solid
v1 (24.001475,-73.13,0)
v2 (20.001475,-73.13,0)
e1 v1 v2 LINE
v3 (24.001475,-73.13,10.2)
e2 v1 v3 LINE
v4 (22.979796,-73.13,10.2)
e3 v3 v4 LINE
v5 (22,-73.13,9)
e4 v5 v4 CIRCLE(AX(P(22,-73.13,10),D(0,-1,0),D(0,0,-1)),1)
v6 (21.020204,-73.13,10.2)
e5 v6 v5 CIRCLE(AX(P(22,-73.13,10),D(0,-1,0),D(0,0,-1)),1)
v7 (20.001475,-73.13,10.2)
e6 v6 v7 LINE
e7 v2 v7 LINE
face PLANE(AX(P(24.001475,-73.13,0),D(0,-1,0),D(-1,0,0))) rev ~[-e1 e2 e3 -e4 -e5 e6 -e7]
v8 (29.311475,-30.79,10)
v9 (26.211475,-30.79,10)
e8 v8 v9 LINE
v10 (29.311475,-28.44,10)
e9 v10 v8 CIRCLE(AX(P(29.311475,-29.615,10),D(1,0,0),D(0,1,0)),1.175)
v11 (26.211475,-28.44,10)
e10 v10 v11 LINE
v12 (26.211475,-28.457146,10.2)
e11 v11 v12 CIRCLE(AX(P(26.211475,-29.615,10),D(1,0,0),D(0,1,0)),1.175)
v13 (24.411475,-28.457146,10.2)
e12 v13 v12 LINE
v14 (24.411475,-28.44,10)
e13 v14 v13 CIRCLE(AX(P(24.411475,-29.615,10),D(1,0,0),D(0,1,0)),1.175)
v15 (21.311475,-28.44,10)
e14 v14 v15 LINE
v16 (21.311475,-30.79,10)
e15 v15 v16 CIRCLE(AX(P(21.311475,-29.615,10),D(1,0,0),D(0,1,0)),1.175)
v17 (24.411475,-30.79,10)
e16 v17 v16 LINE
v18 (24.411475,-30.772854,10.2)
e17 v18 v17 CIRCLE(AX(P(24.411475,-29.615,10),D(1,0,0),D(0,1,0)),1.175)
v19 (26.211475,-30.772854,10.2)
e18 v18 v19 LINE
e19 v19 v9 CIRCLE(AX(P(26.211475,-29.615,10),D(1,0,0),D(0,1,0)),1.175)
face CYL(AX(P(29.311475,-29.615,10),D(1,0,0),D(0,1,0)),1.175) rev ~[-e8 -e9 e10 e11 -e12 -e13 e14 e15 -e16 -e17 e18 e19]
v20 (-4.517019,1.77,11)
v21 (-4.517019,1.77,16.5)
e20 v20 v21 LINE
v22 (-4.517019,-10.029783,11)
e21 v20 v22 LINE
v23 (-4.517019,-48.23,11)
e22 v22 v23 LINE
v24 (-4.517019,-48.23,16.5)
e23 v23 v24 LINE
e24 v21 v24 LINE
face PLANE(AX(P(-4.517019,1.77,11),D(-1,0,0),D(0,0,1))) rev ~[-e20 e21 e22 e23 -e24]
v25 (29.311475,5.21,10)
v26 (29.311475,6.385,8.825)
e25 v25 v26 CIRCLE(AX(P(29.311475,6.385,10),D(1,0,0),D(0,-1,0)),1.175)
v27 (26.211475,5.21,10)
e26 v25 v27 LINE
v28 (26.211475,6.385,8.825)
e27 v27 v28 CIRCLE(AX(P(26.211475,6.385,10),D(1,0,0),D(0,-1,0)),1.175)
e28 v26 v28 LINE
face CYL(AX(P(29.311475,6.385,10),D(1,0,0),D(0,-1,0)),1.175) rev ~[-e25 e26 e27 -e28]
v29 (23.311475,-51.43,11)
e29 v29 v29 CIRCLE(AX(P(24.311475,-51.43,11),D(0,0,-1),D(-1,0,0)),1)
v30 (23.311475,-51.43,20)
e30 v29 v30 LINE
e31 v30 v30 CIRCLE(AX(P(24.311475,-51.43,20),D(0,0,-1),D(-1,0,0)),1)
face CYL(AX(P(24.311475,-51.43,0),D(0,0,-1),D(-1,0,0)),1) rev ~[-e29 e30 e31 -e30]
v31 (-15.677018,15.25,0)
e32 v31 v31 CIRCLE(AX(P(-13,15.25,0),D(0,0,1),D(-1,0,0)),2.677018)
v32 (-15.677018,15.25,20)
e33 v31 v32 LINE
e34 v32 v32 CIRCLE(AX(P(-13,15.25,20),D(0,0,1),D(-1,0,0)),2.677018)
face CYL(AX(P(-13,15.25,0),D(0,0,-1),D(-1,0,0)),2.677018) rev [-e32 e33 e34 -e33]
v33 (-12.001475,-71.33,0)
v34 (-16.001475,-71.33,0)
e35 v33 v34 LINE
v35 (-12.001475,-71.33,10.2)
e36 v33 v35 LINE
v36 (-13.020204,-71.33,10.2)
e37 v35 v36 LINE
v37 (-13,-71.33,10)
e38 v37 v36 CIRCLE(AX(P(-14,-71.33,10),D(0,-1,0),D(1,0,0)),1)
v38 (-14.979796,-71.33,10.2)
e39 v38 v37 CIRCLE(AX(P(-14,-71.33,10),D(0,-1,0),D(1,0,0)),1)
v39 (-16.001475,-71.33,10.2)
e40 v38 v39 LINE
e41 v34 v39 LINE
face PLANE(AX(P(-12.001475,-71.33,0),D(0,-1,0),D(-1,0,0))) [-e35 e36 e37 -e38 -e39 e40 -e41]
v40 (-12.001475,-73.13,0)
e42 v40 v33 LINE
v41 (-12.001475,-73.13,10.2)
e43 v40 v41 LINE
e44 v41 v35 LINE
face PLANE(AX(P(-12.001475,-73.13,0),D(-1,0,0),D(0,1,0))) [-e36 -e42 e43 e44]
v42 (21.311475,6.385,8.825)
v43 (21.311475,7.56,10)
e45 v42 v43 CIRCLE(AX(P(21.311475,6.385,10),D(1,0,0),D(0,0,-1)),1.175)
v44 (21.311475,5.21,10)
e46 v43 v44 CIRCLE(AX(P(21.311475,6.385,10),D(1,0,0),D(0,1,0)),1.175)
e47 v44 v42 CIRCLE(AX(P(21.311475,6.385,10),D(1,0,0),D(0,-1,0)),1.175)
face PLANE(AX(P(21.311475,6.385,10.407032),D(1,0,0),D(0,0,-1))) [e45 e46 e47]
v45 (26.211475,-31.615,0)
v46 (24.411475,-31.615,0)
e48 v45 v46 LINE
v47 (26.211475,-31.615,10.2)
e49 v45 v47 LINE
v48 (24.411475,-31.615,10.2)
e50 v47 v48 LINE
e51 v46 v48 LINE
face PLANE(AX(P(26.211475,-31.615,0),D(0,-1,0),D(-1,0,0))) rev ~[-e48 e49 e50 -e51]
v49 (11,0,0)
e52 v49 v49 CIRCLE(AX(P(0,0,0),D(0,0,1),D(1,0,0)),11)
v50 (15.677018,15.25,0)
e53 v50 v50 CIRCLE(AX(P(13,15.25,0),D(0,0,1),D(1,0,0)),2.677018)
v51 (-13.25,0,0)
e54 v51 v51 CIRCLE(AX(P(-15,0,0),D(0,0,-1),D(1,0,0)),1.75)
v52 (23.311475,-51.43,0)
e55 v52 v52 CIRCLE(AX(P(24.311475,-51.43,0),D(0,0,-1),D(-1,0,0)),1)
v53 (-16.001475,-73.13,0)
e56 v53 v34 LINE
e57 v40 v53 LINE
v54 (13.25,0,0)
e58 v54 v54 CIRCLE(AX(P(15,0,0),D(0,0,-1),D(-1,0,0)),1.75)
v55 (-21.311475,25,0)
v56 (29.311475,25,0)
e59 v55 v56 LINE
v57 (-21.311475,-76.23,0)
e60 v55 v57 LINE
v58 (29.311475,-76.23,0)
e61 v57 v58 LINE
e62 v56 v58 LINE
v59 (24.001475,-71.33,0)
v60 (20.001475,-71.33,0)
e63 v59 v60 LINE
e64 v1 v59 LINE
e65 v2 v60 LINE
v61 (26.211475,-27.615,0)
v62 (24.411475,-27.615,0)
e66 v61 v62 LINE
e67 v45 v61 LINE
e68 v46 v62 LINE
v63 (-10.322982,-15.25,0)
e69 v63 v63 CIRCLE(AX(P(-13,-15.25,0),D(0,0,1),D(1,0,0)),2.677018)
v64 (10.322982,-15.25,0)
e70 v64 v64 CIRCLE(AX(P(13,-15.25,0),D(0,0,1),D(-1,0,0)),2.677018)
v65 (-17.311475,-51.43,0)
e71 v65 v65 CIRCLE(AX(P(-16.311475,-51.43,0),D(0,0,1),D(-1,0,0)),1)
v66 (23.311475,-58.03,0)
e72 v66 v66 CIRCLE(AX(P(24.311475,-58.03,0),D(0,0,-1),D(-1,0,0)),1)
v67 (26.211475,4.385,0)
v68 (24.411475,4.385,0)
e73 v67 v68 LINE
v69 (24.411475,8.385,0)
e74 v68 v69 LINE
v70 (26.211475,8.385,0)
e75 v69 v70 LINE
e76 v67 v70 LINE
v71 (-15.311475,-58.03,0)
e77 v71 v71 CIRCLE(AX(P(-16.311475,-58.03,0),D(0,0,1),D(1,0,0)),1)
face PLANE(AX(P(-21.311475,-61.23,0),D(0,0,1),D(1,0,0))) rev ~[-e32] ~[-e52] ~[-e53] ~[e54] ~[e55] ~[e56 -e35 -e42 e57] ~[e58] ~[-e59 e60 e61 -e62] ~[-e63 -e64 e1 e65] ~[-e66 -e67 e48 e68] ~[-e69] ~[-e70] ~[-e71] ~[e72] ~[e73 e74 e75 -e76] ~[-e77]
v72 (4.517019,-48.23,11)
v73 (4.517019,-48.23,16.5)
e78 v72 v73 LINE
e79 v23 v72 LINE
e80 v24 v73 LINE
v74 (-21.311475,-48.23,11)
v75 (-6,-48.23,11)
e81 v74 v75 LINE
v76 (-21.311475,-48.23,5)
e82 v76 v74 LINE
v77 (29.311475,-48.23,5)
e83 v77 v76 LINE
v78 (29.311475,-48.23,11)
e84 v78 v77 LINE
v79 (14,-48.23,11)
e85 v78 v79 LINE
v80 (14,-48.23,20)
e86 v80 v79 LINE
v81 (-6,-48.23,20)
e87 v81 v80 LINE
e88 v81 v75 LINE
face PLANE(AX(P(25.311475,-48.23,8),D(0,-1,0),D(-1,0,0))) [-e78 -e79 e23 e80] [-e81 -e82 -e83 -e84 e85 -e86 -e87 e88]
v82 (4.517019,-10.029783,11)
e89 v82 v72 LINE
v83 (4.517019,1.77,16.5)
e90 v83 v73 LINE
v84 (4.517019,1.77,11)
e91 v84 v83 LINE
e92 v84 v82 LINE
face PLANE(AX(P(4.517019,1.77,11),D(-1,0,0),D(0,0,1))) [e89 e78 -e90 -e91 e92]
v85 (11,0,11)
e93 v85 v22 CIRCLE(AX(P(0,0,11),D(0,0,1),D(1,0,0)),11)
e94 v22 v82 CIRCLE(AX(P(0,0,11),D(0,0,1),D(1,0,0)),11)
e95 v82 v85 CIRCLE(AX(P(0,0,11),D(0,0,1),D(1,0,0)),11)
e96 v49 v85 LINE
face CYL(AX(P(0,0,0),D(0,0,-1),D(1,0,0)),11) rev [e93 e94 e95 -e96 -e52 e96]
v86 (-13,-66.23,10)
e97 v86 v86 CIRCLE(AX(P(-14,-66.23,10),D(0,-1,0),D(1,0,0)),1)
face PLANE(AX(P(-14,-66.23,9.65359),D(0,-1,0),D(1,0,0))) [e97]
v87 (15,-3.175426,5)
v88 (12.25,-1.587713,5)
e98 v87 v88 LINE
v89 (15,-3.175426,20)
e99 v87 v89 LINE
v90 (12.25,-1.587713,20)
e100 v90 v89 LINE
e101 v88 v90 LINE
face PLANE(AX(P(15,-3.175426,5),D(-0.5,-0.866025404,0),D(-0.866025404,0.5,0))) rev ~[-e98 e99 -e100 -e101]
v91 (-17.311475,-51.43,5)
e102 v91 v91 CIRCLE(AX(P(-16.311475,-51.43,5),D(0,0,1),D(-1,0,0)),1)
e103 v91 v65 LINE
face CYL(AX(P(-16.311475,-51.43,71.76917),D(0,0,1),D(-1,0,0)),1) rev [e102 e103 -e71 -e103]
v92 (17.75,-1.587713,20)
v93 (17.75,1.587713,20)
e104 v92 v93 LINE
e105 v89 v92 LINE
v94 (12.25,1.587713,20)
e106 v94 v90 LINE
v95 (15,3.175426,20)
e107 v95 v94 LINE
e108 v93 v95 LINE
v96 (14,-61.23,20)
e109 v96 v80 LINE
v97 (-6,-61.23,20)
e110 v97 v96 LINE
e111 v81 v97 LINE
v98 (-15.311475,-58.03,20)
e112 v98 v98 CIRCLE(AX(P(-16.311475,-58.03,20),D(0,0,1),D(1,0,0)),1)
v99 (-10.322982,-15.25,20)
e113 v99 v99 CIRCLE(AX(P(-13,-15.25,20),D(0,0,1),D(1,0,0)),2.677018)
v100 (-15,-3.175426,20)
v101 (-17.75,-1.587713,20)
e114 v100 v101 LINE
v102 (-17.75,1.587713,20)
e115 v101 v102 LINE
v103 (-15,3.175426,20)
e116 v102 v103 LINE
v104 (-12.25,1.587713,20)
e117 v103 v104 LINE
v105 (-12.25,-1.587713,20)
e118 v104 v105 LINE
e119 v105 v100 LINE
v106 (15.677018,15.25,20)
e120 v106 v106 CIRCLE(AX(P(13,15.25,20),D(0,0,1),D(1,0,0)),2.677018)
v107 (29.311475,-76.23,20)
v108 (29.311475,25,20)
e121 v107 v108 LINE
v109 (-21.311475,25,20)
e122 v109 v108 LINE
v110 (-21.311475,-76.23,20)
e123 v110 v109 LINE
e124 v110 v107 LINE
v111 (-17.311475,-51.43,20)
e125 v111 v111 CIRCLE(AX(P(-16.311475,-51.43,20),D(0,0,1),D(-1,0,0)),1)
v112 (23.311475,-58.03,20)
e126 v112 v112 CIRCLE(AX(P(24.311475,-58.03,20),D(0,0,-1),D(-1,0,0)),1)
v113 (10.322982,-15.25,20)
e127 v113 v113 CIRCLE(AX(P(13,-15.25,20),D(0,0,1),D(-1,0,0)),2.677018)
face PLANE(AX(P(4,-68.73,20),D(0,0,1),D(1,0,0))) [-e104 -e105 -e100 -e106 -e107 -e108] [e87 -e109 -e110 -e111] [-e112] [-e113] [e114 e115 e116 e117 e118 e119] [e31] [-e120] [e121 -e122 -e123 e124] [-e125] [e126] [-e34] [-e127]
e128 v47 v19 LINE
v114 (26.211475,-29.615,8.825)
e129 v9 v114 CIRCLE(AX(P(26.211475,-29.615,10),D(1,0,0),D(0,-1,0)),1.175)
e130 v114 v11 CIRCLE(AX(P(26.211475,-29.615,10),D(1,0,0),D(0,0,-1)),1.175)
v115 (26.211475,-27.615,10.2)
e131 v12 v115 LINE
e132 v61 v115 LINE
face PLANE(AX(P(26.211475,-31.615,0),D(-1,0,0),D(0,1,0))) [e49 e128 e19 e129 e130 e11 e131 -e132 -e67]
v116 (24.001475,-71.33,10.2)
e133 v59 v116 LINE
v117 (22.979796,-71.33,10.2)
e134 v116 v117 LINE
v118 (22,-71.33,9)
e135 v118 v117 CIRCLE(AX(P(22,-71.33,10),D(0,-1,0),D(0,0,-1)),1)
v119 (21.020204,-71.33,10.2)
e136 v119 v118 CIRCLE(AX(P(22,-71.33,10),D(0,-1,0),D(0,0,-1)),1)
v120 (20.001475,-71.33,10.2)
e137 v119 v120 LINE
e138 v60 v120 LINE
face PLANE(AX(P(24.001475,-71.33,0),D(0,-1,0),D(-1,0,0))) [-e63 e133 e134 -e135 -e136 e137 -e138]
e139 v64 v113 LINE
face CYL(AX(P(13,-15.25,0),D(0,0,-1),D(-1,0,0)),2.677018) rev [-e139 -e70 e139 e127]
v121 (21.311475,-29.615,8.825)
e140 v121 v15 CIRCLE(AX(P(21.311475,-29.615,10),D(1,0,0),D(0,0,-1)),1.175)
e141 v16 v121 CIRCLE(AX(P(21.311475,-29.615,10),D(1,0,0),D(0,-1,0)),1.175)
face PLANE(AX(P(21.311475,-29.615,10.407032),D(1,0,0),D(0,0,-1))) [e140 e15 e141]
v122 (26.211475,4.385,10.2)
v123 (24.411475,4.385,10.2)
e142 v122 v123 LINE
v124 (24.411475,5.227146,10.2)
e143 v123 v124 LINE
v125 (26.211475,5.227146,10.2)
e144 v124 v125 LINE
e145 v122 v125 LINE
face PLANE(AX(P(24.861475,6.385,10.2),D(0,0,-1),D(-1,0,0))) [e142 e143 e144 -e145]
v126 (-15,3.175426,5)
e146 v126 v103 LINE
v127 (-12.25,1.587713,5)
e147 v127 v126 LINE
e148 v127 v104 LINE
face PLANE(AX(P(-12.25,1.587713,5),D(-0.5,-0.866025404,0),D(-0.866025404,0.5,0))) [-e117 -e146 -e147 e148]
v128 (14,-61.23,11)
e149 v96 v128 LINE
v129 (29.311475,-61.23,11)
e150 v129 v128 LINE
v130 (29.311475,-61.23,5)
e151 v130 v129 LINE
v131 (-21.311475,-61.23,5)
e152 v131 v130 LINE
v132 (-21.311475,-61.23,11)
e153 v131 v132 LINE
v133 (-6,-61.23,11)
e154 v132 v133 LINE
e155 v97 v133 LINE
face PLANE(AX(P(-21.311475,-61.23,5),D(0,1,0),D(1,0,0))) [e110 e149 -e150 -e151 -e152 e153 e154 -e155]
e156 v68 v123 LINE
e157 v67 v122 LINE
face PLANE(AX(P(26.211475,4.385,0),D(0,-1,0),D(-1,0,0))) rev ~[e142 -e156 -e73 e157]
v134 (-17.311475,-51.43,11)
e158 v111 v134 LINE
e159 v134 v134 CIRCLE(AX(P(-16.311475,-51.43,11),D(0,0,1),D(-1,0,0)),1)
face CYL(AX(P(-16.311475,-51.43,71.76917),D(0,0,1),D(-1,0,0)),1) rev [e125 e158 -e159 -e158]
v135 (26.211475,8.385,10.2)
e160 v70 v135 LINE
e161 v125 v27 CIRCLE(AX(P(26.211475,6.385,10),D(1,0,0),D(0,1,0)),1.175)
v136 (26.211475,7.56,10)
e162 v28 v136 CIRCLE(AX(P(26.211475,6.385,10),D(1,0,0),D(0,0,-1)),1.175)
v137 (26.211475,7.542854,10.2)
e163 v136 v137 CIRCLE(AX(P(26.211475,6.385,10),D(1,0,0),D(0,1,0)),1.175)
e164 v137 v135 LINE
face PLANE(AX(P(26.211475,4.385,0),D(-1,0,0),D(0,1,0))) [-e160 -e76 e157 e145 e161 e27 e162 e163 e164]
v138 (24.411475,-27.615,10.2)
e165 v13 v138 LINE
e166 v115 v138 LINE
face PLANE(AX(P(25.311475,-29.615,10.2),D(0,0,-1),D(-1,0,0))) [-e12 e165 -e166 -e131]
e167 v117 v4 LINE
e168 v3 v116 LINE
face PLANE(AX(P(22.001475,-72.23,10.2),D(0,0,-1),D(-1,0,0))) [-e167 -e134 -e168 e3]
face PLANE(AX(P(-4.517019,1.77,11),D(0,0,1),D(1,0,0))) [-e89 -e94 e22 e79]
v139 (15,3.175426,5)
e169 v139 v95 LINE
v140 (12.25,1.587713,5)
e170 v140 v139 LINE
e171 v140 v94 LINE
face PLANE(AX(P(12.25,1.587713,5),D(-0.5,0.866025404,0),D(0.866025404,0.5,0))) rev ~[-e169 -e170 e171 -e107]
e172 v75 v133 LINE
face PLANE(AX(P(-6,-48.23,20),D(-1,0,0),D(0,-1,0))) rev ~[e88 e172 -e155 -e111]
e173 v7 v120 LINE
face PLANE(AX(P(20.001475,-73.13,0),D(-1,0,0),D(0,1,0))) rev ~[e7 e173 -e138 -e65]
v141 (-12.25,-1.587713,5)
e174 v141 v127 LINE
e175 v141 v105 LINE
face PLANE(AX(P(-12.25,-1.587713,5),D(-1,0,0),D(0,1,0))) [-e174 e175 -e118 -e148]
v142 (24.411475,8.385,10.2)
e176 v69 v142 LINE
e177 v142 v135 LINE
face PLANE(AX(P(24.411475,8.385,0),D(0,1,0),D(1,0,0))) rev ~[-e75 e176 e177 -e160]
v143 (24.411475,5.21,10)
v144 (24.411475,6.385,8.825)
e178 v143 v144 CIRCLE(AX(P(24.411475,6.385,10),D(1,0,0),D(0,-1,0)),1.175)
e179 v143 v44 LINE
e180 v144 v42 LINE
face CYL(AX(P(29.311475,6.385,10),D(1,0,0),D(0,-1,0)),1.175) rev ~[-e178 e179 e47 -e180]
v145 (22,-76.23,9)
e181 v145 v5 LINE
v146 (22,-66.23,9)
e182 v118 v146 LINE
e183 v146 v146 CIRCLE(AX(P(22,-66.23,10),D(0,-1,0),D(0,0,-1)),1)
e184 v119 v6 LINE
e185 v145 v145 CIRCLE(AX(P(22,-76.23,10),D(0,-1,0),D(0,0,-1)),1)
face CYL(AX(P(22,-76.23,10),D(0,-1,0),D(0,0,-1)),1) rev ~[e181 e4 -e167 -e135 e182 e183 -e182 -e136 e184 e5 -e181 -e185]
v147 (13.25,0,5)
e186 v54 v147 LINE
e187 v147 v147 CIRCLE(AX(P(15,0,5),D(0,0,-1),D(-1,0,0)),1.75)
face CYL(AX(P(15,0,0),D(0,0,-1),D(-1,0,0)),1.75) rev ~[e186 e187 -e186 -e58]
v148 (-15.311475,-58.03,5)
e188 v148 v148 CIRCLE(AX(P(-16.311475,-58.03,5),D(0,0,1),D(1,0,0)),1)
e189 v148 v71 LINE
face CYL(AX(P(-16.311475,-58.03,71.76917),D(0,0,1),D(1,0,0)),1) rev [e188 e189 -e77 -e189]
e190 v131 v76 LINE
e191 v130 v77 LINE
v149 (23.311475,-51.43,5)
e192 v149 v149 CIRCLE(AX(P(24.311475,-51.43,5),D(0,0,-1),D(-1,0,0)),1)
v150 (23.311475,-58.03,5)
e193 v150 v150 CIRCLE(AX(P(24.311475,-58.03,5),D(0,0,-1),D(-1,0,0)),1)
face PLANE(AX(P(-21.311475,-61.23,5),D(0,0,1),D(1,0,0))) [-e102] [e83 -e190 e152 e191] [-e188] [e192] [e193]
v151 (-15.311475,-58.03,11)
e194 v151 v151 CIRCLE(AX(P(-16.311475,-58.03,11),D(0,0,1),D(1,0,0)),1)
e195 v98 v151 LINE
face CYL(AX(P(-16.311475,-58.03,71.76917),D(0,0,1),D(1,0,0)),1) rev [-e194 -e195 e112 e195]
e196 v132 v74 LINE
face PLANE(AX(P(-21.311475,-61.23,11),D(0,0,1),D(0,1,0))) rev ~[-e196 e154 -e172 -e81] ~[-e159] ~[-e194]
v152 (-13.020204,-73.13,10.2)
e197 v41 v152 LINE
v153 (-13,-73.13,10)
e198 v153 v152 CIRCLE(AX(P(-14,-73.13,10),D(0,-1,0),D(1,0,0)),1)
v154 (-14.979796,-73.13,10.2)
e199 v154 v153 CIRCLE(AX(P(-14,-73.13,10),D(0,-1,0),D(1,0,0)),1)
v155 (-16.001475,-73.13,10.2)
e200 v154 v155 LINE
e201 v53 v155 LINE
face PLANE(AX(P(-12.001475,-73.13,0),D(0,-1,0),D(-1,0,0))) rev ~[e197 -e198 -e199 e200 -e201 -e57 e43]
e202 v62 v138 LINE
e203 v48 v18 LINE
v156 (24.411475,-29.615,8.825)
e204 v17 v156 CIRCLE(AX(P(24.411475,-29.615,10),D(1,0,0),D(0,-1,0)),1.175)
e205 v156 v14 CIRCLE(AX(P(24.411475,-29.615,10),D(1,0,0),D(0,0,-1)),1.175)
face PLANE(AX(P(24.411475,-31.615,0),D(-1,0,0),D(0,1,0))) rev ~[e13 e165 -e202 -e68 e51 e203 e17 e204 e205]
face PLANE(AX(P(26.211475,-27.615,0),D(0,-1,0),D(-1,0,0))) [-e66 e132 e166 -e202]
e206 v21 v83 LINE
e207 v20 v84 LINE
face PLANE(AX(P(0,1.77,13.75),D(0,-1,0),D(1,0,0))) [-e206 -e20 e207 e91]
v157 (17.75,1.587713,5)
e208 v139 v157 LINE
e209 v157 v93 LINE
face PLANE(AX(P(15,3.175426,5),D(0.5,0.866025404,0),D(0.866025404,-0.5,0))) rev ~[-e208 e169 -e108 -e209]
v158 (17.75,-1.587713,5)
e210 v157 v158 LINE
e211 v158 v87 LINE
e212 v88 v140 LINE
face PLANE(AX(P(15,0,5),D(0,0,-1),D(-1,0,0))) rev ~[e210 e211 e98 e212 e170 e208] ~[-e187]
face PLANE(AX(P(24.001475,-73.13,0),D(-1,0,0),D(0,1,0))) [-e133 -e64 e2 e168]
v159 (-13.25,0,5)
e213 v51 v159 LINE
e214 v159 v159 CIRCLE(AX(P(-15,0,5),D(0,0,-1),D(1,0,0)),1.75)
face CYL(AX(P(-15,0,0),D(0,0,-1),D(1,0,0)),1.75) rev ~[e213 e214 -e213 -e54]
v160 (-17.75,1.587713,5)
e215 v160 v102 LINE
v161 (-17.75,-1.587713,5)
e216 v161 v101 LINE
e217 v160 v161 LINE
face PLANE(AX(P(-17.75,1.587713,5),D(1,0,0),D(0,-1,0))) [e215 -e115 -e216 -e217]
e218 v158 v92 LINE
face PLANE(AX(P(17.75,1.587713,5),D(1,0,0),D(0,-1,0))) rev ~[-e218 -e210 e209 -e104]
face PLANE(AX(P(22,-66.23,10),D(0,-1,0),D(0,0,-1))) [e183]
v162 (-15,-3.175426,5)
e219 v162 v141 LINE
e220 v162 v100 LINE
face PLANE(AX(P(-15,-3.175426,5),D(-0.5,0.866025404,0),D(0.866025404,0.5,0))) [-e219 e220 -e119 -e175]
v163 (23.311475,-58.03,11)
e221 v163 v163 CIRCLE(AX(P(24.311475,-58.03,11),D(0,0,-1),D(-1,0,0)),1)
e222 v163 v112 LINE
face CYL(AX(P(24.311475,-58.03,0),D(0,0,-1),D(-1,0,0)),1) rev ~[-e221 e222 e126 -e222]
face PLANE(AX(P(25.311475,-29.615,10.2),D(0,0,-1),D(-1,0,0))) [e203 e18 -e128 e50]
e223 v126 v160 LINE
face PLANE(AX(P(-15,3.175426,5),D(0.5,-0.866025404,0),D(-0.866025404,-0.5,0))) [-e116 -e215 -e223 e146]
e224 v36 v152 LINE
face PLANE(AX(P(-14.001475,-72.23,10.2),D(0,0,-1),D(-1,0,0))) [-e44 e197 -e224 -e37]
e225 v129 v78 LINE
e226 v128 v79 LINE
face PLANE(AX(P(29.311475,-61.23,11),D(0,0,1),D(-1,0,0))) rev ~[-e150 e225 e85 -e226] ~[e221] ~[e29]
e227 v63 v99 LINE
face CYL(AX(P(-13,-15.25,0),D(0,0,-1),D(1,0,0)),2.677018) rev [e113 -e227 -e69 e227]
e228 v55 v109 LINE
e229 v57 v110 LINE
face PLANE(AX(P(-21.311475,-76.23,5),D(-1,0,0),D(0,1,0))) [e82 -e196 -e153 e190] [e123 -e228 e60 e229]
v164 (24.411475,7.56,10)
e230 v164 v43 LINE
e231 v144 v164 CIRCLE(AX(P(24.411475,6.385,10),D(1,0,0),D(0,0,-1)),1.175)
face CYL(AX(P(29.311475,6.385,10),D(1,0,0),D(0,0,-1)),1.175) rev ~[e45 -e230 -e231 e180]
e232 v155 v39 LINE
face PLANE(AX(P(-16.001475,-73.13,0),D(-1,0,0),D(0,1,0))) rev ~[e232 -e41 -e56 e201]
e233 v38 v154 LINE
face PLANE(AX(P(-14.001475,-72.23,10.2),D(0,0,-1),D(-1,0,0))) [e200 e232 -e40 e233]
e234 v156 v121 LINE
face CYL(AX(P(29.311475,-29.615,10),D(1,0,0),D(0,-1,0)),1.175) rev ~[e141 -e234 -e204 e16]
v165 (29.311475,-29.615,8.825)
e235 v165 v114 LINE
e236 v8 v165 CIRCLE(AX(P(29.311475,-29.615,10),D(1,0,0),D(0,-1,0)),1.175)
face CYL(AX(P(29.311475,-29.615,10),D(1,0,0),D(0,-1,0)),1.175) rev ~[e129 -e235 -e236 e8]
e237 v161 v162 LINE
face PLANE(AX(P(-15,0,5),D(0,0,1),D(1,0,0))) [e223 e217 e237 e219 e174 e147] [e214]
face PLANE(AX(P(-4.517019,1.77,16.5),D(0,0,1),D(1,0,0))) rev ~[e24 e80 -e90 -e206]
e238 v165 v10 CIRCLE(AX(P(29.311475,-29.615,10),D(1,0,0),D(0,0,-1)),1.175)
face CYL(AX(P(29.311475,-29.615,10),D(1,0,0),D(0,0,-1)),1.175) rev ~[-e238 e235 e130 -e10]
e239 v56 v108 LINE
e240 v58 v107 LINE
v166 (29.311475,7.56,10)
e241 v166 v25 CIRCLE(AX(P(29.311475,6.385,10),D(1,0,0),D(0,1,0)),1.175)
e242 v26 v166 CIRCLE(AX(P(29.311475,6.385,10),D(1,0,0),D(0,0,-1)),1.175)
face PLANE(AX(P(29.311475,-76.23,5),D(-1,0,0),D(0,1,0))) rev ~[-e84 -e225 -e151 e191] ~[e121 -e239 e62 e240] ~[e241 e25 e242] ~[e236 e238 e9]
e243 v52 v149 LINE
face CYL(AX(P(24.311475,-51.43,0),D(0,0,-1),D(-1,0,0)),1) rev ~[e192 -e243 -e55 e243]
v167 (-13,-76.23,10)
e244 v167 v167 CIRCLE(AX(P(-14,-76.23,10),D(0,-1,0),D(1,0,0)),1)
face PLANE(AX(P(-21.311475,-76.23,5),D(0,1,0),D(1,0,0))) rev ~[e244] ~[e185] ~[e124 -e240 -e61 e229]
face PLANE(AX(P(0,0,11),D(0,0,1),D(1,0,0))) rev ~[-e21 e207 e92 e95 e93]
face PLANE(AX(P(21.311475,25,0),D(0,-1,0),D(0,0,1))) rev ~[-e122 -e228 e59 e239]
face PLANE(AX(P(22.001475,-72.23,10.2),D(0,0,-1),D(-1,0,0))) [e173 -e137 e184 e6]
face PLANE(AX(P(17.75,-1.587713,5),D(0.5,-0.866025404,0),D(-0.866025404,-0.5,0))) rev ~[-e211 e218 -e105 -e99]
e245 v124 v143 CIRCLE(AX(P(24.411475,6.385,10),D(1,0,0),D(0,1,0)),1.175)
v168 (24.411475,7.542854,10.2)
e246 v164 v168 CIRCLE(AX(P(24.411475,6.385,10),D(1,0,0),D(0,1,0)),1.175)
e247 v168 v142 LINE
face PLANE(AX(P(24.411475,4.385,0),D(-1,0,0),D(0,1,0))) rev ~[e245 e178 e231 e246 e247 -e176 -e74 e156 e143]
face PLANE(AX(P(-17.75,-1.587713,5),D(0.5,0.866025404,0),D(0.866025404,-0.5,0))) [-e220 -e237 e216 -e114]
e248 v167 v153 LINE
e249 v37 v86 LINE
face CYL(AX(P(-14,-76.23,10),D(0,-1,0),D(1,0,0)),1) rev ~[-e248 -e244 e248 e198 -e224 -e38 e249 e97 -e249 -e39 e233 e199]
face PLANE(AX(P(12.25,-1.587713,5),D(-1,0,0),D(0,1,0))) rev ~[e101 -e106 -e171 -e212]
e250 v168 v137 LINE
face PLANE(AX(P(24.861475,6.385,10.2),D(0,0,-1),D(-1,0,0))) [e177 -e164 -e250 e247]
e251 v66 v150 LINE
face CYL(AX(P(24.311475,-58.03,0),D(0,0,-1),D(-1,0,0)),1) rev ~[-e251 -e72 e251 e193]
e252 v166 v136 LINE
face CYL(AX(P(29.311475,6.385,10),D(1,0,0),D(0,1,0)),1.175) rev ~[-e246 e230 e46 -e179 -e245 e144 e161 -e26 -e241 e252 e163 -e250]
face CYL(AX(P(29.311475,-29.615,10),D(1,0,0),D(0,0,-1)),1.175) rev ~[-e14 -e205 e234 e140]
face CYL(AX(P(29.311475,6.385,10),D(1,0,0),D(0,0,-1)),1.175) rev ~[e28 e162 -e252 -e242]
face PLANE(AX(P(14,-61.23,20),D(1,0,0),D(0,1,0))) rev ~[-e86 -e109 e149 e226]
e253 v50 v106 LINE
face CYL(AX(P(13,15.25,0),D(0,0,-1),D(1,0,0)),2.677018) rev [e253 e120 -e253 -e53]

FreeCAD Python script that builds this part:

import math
import FreeCAD as App
import Part
import Sketcher
from FreeCAD import Vector
Q = App.Units.Quantity


def add_polygon(sketch, points):
    """Adds a closed chain of lines whose ends are joined by coincident constraints."""
    first, n = sketch.GeometryCount, len(points)
    for a, b in zip(points, points[1:] + points[:1]):
        sketch.addGeometry(Part.LineSegment(App.Vector(*a, 0), App.Vector(*b, 0)), False)
    for i in range(n):
        sketch.addConstraint(Sketcher.Constraint("Coincident", first + i, 2, first + (i + 1) % n, 1))

doc = App.newDocument("Part")
body = doc.addObject("PartDesign::Body", "Body")

# Sketch on XY plane
sketch1 = body.newObject("Sketcher::SketchObject", "Sketch")
sketch1.AttachmentSupport = (doc.getObject("XY_Plane"), [""])
sketch1.MapMode = "FlatFace"
add_polygon(sketch1, [(-21.311475, 25), (-21.311475, -25), (21.311475, -25), (21.311475, 25)])  # lines 0-3
sketch1.addGeometry(Part.Circle(Vector(-13, -15.25, 0), Vector(0, 0, 1), 2.677018), False)  # 4
sketch1.addGeometry(Part.Circle(Vector(13, -15.25, 0), Vector(0, 0, 1), 2.677018), False)  # 5
sketch1.addGeometry(Part.Circle(Vector(-13, 15.25, 0), Vector(0, 0, 1), 2.677018), False)  # 6
sketch1.addGeometry(Part.Circle(Vector(13, 15.25, 0), Vector(0, 0, 1), 2.677018), False)  # 7
sketch1.addConstraint([
    Sketcher.Constraint("Vertical", 0),
    Sketcher.Constraint("Horizontal", 1),
    Sketcher.Constraint("Vertical", 2),
    Sketcher.Constraint("Horizontal", 3),
    Sketcher.Constraint("Equal", 4, 5),
    Sketcher.Constraint("Equal", 5, 6),
    Sketcher.Constraint("Equal", 6, 7),
    Sketcher.Constraint("Symmetric", 5, 3, 6, 3, -1, 1),
    Sketcher.Constraint("Symmetric", 4, 3, 7, 3, -1, 1),
    Sketcher.Constraint("Symmetric", 0, 2, 2, 2, -1, 1),
    Sketcher.Constraint("Symmetric", 4, 3, 5, 3, -2),
    Sketcher.Constraint("DistanceY", 0, 2, 0, 1, 50.0),
    Sketcher.Constraint("DistanceX", 4, 3, -1, 1, 13.0),
    Sketcher.Constraint("DistanceY", 4, 3, 6, 3, 30.5),
    Sketcher.Constraint("Diameter", 4, 5.354036),
    Sketcher.Constraint("DistanceX", 1, 1, 1, 2, 42.622951),
])
pad1 = body.newObject("PartDesign::Pad", "Pad")
pad1.Profile = sketch1
pad1.Length = 20

# Sketch on XY plane
sketch2 = body.newObject("Sketcher::SketchObject", "Sketch001")
sketch2.AttachmentSupport = (doc.getObject("XY_Plane"), [""])
sketch2.MapMode = "FlatFace"
sketch2.addGeometry(Part.Circle(Vector(0, 0, 0), Vector(0, 0, 1), 11), False)
sketch2.addConstraint([
    Sketcher.Constraint("Coincident", 0, 3, -1, 1),
    Sketcher.Constraint("Diameter", 0, 22.0),
])
pocket1 = body.newObject("PartDesign::Pocket", "Pocket")
pocket1.Profile = sketch2
pocket1.Length = 11
pocket1.Reversed = True

# Sketch on XY plane
sketch3 = body.newObject("Sketcher::SketchObject", "Sketch002")
sketch3.AttachmentSupport = (doc.getObject("XY_Plane"), [""])
sketch3.MapMode = "FlatFace"
sketch3.addGeometry([
    Part.Circle(Vector(15, 0, 0), Vector(0, 0, 1), 1.75),
    Part.Circle(Vector(-15, 0, 0), Vector(0, 0, 1), 1.75),
], False)
sketch3.addConstraint([
    Sketcher.Constraint("Equal", 0, 1),
    Sketcher.Constraint("Symmetric", 0, 3, 1, 3, -1, 1),
    Sketcher.Constraint("PointOnObject", 0, 3, -1),
    Sketcher.Constraint("Diameter", 0, 3.5),
    Sketcher.Constraint("DistanceX", -1, 1, 0, 3, 15.0),
])
pocket2 = body.newObject("PartDesign::Pocket", "Pocket001")
pocket2.Profile = sketch3
pocket2.Length = 10
pocket2.Reversed = True

# Sketch on XY plane
sketch4 = body.newObject("Sketcher::SketchObject", "Sketch003")
sketch4.AttachmentSupport = (doc.getObject("XY_Plane"), [""])
sketch4.MapMode = "FlatFace"
sketch4.AttachmentOffset = App.Placement(Vector(0, 0, 5), App.Rotation())
add_polygon(sketch4, [(15, 3.175426), (17.75, 1.587713), (17.75, -1.587713), (15, -3.175426), (12.25, -1.587713), (12.25, 1.587713)])  # lines 0-5
add_polygon(sketch4, [(-15, 3.175426), (-12.25, 1.587713), (-12.25, -1.587713), (-15, -3.175426), (-17.75, -1.587713), (-17.75, 1.587713)])  # lines 6-11
sketch4.addConstraint([
    Sketcher.Constraint("Vertical", 1),
    Sketcher.Constraint("Vertical", 4),
    Sketcher.Constraint("Vertical", 7),
    Sketcher.Constraint("Vertical", 10),
    Sketcher.Constraint("Symmetric", 3, 2, 6, 2, -1, 1),
    Sketcher.Constraint("Symmetric", 5, 2, 8, 2, -1, 1),
    Sketcher.Constraint("Symmetric", 0, 2, 9, 2, -1, 1),
    Sketcher.Constraint("Symmetric", 2, 2, 11, 2, -1, 1),
    Sketcher.Constraint("Symmetric", 2, 2, 8, 2, -2),
    Sketcher.Constraint("Parallel", 0, 3),
    Sketcher.Constraint("Parallel", 2, 5),
    Sketcher.Constraint("Parallel", 5, 8),
    Sketcher.Constraint("Parallel", 8, 11),
    Sketcher.Constraint("Horizontal", 1, 2, 3, 2),
    Sketcher.Constraint("Horizontal", 0, 2, 4, 2),
    Sketcher.Constraint("Angle", 0, Q("-30 deg")),
    Sketcher.Constraint("DistanceX", -1, 1, 2, 2, 15.0),
    Sketcher.Constraint("DistanceX", 3, 2, 1, 2, 5.5),
    Sketcher.Constraint("DistanceY", 1, 2, 1, 1, 3.175426),
])
pocket3 = body.newObject("PartDesign::Pocket", "Pocket002")
pocket3.Profile = sketch4
pocket3.Type = "ThroughAll"
pocket3.Reversed = True

# Sketch on XZ plane
sketch5 = body.newObject("Sketcher::SketchObject", "Sketch004")
sketch5.AttachmentSupport = (doc.getObject("XZ_Plane"), [""])
sketch5.MapMode = "FlatFace"
sketch5.AttachmentOffset = App.Placement(Vector(0, 0, 25), App.Rotation())
add_polygon(sketch5, [(-21.311475, 20), (-21.311475, 0), (21.311475, 0), (21.311475, 20)])  # lines 0-3
sketch5.addConstraint([
    Sketcher.Constraint("Vertical", 0),
    Sketcher.Constraint("Horizontal", 1),
    Sketcher.Constraint("Vertical", 2),
    Sketcher.Constraint("Horizontal", 3),
    Sketcher.Constraint("Symmetric", 0, 2, 1, 2, -1, 1),
    Sketcher.Constraint("DistanceY", 0, 2, 0, 1, 20.0),
    Sketcher.Constraint("DistanceX", 1, 1, 1, 2, 42.622951),
])
pad2 = body.newObject("PartDesign::Pad", "Pad001")
pad2.Profile = sketch5
pad2.Length = 20.23

# Sketch on XY plane
sketch6 = body.newObject("Sketcher::SketchObject", "Sketch005")
sketch6.AttachmentSupport = (doc.getObject("XY_Plane"), [""])
sketch6.MapMode = "FlatFace"
add_polygon(sketch6, [(-21.311475, -45.23), (-21.311475, -61.23), (21.311475, -61.23), (21.311475, -45.23)])  # lines 0-3
sketch6.addConstraint([
    Sketcher.Constraint("Vertical", 0),
    Sketcher.Constraint("Horizontal", 1),
    Sketcher.Constraint("Vertical", 2),
    Sketcher.Constraint("Horizontal", 3),
    Sketcher.Constraint("DistanceY", 0, 2, 0, 1, 16.0),
    Sketcher.Constraint("DistanceY", 0, 2, -1, 1, 61.23),
    Sketcher.Constraint("DistanceX", 1, 1, 1, 2, 42.622951),
    Sketcher.Constraint("DistanceX", 0, 2, -1, 1, 21.311475),
])
pad3 = body.newObject("PartDesign::Pad", "Pad002")
pad3.Profile = sketch6
pad3.Length = 20

# Sketch on YZ plane
sketch7 = body.newObject("Sketcher::SketchObject", "Sketch006")
sketch7.AttachmentSupport = (doc.getObject("YZ_Plane"), [""])
sketch7.MapMode = "FlatFace"
sketch7.AttachmentOffset = App.Placement(Vector(0, 0, -21.311475), App.Rotation())
add_polygon(sketch7, [(-48.23, 5), (-61.23, 5), (-61.23, 11), (-48.23, 11)])  # lines 0-3
sketch7.addConstraint([
    Sketcher.Constraint("Horizontal", 0),
    Sketcher.Constraint("Vertical", 1),
    Sketcher.Constraint("Horizontal", 2),
    Sketcher.Constraint("Vertical", 3),
    Sketcher.Constraint("DistanceX", 0, 2, 0, 1, 13.0),
    Sketcher.Constraint("DistanceY", 1, 1, 1, 2, 6.0),
    Sketcher.Constraint("DistanceY", -1, 1, 0, 2, 5.0),
    Sketcher.Constraint("DistanceX", 0, 2, -1, 1, 61.23),
])
pocket4 = body.newObject("PartDesign::Pocket", "Pocket003")
pocket4.Profile = sketch7
pocket4.Type = "ThroughAll"
pocket4.Reversed = True

# Sketch on YZ plane
sketch8 = body.newObject("Sketcher::SketchObject", "Sketch007")
sketch8.AttachmentSupport = (doc.getObject("YZ_Plane"), [""])
sketch8.MapMode = "FlatFace"
sketch8.AttachmentOffset = App.Placement(Vector(0, 0, 21.311475), App.Rotation())
add_polygon(sketch8, [(-48.23, 0), (25, 0), (25, 20), (-48.23, 20)])  # lines 0-3
sketch8.addConstraint([
    Sketcher.Constraint("Horizontal", 0),
    Sketcher.Constraint("Vertical", 1),
    Sketcher.Constraint("Horizontal", 2),
    Sketcher.Constraint("Vertical", 3),
    Sketcher.Constraint("PointOnObject", 0, 2, -1),
    Sketcher.Constraint("DistanceY", 1, 1, 1, 2, 20.0),
    Sketcher.Constraint("DistanceX", -1, 1, 0, 2, 25.0),
    Sketcher.Constraint("DistanceX", 0, 1, 0, 2, 73.23),
])
pad4 = body.newObject("PartDesign::Pad", "Pad003")
pad4.Profile = sketch8
pad4.Length = 8

# Sketch on YZ plane
sketch9 = body.newObject("Sketcher::SketchObject", "Sketch008")
sketch9.AttachmentSupport = (doc.getObject("YZ_Plane"), [""])
sketch9.MapMode = "FlatFace"
sketch9.AttachmentOffset = App.Placement(Vector(0, 0, 29.311475), App.Rotation())
sketch9.addGeometry([
    Part.ArcOfCircle(Part.Circle(Vector(6.385, 10, 0), Vector(0, 0, 1), 1.175), math.radians(0), math.radians(180)),  # 0
    Part.ArcOfCircle(Part.Circle(Vector(6.385, 10, 0), Vector(0, 0, 1), 1.175), math.radians(180), math.radians(270)),  # 1
    Part.ArcOfCircle(Part.Circle(Vector(6.385, 10, 0), Vector(0, 0, 1), 1.175), math.radians(-90), math.radians(0)),  # 2
    Part.ArcOfCircle(Part.Circle(Vector(-29.615, 10, 0), Vector(0, 0, 1), 1.175), math.radians(0), math.radians(180)),  # 3
    Part.ArcOfCircle(Part.Circle(Vector(-29.615, 10, 0), Vector(0, 0, 1), 1.175), math.radians(180), math.radians(270)),  # 4
    Part.ArcOfCircle(Part.Circle(Vector(-29.615, 10, 0), Vector(0, 0, 1), 1.175), math.radians(-90), math.radians(0)),  # 5
], False)
sketch9.addConstraint([
    Sketcher.Constraint("Tangent", 0, 2, 1, 1),
    Sketcher.Constraint("Tangent", 1, 2, 2, 1),
    Sketcher.Constraint("Tangent", 2, 2, 0, 1),
    Sketcher.Constraint("Tangent", 3, 2, 4, 1),
    Sketcher.Constraint("Tangent", 4, 2, 5, 1),
    Sketcher.Constraint("Tangent", 5, 2, 3, 1),
    Sketcher.Constraint("Equal", 2, 3),
    Sketcher.Constraint("Horizontal", 2, 3, 3, 3),
    Sketcher.Constraint("Horizontal", 5, 3, 0, 2),
    Sketcher.Constraint("Horizontal", 0, 2, 2, 2),
    Sketcher.Constraint("Horizontal", 2, 2, 3, 2),
    Sketcher.Constraint("Horizontal", 3, 2, 5, 2),
    Sketcher.Constraint("Vertical", 2, 3, 1, 2),
    Sketcher.Constraint("Vertical", 5, 3, 4, 2),
    Sketcher.Constraint("DistanceY", -1, 1, 0, 3, 10.0),
    Sketcher.Constraint("Radius", 0, 1.175),
    Sketcher.Constraint("DistanceX", 3, 3, 0, 3, 36.0),
    Sketcher.Constraint("DistanceX", -1, 1, 0, 2, 5.21),
])
pocket5 = body.newObject("PartDesign::Pocket", "Pocket004")
pocket5.Profile = sketch9
pocket5.Length = 8

# Sketch on XY plane
sketch10 = body.newObject("Sketcher::SketchObject", "Sketch009")
sketch10.AttachmentSupport = (doc.getObject("XY_Plane"), [""])
sketch10.MapMode = "FlatFace"
add_polygon(sketch10, [(24.411475, 4.385), (24.411475, 8.385), (26.211475, 8.385), (26.211475, 4.385)])  # lines 0-3
add_polygon(sketch10, [(26.211475, -27.615), (26.211475, -31.615), (24.411475, -31.615), (24.411475, -27.615)])  # lines 4-7
sketch10.addConstraint([
    Sketcher.Constraint("Vertical", 0),
    Sketcher.Constraint("Horizontal", 1),
    Sketcher.Constraint("Vertical", 2),
    Sketcher.Constraint("Horizontal", 3),
    Sketcher.Constraint("Vertical", 4),
    Sketcher.Constraint("Horizontal", 5),
    Sketcher.Constraint("Vertical", 6),
    Sketcher.Constraint("Horizontal", 7),
    Sketcher.Constraint("Vertical", 2, 2, 4, 2),
    Sketcher.Constraint("Vertical", 3, 2, 5, 2),
    Sketcher.Constraint("Equal", 2, 4),
    Sketcher.Constraint("DistanceY", 0, 1, 0, 2, 4.0),
    Sketcher.Constraint("DistanceX", 1, 1, 1, 2, 1.8),
    Sketcher.Constraint("DistanceY", 4, 2, 2, 2, 36.0),
    Sketcher.Constraint("DistanceY", -1, 1, 0, 2, 8.385),
    Sketcher.Constraint("DistanceX", -1, 1, 0, 2, 24.411475),
])
pocket6 = body.newObject("PartDesign::Pocket", "Pocket005")
pocket6.Profile = sketch10
pocket6.Length = 10.2
pocket6.Reversed = True

# Sketch on XY plane
sketch11 = body.newObject("Sketcher::SketchObject", "Sketch010")
sketch11.AttachmentSupport = (doc.getObject("XY_Plane"), [""])
sketch11.MapMode = "FlatFace"
sketch11.addGeometry([
    Part.Circle(Vector(-16.311475, -58.03, 0), Vector(0, 0, 1), 1),
    Part.Circle(Vector(-16.311475, -51.43, 0), Vector(0, 0, 1), 1),
], False)
sketch11.addConstraint([
    Sketcher.Constraint("Equal", 0, 1),
    Sketcher.Constraint("Vertical", 0, 3, 1, 3),
    Sketcher.Constraint("Diameter", 0, 2.0),
    Sketcher.Constraint("DistanceY", 0, 3, 1, 3, 6.6),
    Sketcher.Constraint("DistanceY", 0, 3, -1, 1, 58.03),
    Sketcher.Constraint("DistanceX", 0, 3, -1, 1, 16.311475),
])
pocket7 = body.newObject("PartDesign::Pocket", "Pocket006")
pocket7.Profile = sketch11
pocket7.Type = "ThroughAll"
pocket7.Midplane = True

# Sketch on XZ plane
sketch12 = body.newObject("Sketcher::SketchObject", "Sketch011")
sketch12.AttachmentSupport = (doc.getObject("XZ_Plane"), [""])
sketch12.MapMode = "FlatFace"
sketch12.AttachmentOffset = App.Placement(Vector(0, 0, 48.23), App.Rotation())
add_polygon(sketch12, [(-4.517019, 16.5), (-4.517019, 11), (4.517019, 11), (4.517019, 16.5)])  # lines 0-3
sketch12.addConstraint([
    Sketcher.Constraint("Vertical", 0),
    Sketcher.Constraint("Horizontal", 1),
    Sketcher.Constraint("Vertical", 2),
    Sketcher.Constraint("Horizontal", 3),
    Sketcher.Constraint("DistanceY", 0, 2, 0, 1, 5.5),
    Sketcher.Constraint("DistanceY", -1, 1, 0, 2, 11.0),
    Sketcher.Constraint("DistanceX", 1, 1, 1, 2, 9.034038),
    Sketcher.Constraint("DistanceX", 0, 2, -1, 1, 4.517019),
])
pocket8 = body.newObject("PartDesign::Pocket", "Pocket007")
pocket8.Profile = sketch12
pocket8.Type = "TwoLengths"
pocket8.Length = 82.374415
pocket8.Length2 = 50
pocket8.Reversed = True

# Sketch on XZ plane
sketch13 = body.newObject("Sketcher::SketchObject", "Sketch012")
sketch13.AttachmentSupport = (doc.getObject("XZ_Plane"), [""])
sketch13.MapMode = "FlatFace"
sketch13.AttachmentOffset = App.Placement(Vector(0, 0, 48.23), App.Rotation())
add_polygon(sketch13, [(29.311475, 0), (29.311475, 20), (21.311475, 20), (21.311475, 0)])  # lines 0-3
sketch13.addConstraint([
    Sketcher.Constraint("Vertical", 0),
    Sketcher.Constraint("Horizontal", 1),
    Sketcher.Constraint("Vertical", 2),
    Sketcher.Constraint("Horizontal", 3),
    Sketcher.Constraint("PointOnObject", 2, 2, -1),
    Sketcher.Constraint("DistanceX", 1, 2, 1, 1, 8.0),
    Sketcher.Constraint("DistanceY", 0, 1, 0, 2, 20.0),
    Sketcher.Constraint("DistanceX", -1, 1, 0, 2, 29.311475),
])
pad5 = body.newObject("PartDesign::Pad", "Pad004")
pad5.Profile = sketch13
pad5.Length = 13

# Sketch on XZ plane
sketch14 = body.newObject("Sketcher::SketchObject", "Sketch013")
sketch14.AttachmentSupport = (doc.getObject("XZ_Plane"), [""])
sketch14.MapMode = "FlatFace"
sketch14.AttachmentOffset = App.Placement(Vector(0, 0, 61.23), App.Rotation())
add_polygon(sketch14, [(29.311475, 5), (29.311475, 11), (21.311475, 11), (21.311475, 5)])  # lines 0-3
sketch14.addConstraint([
    Sketcher.Constraint("Vertical", 0),
    Sketcher.Constraint("Horizontal", 1),
    Sketcher.Constraint("Vertical", 2),
    Sketcher.Constraint("Horizontal", 3),
    Sketcher.Constraint("DistanceX", 1, 2, 1, 1, 8.0),
    Sketcher.Constraint("DistanceY", 0, 1, 0, 2, 6.0),
    Sketcher.Constraint("DistanceY", -1, 1, 0, 2, 11.0),
    Sketcher.Constraint("DistanceX", -1, 1, 0, 2, 29.311475),
])
pocket9 = body.newObject("PartDesign::Pocket", "Pocket008")
pocket9.Profile = sketch14
pocket9.Length = 13

# Sketch on XY plane
sketch15 = body.newObject("Sketcher::SketchObject", "Sketch014")
sketch15.AttachmentSupport = (doc.getObject("XY_Plane"), [""])
sketch15.MapMode = "FlatFace"
sketch15.addGeometry([
    Part.Circle(Vector(24.311475, -58.03, 0), Vector(0, 0, 1), 1),
    Part.Circle(Vector(24.311475, -51.43, 0), Vector(0, 0, 1), 1),
], False)
sketch15.addConstraint([
    Sketcher.Constraint("Equal", 0, 1),
    Sketcher.Constraint("Vertical", 0, 3, 1, 3),
    Sketcher.Constraint("Diameter", 0, 2.0),
    Sketcher.Constraint("DistanceY", 0, 3, 1, 3, 6.6),
    Sketcher.Constraint("DistanceY", 0, 3, -1, 1, 58.03),
    Sketcher.Constraint("DistanceX", -1, 1, 0, 3, 24.311475),
])
pocket10 = body.newObject("PartDesign::Pocket", "Pocket009")
pocket10.Profile = sketch15
pocket10.Type = "ThroughAll"
pocket10.Reversed = True

# Sketch on XZ plane
sketch16 = body.newObject("Sketcher::SketchObject", "Sketch015")
sketch16.AttachmentSupport = (doc.getObject("XZ_Plane"), [""])
sketch16.MapMode = "FlatFace"
sketch16.AttachmentOffset = App.Placement(Vector(0, 0, 61.23), App.Rotation())
add_polygon(sketch16, [(-21.311475, 5), (-21.311475, 0), (29.311475, 0), (29.311475, 5)])  # lines 0-3
sketch16.addConstraint([
    Sketcher.Constraint("Vertical", 0),
    Sketcher.Constraint("Horizontal", 1),
    Sketcher.Constraint("Vertical", 2),
    Sketcher.Constraint("Horizontal", 3),
    Sketcher.Constraint("PointOnObject", 0, 2, -1),
    Sketcher.Constraint("DistanceY", 0, 2, 0, 1, 5.0),
    Sketcher.Constraint("DistanceX", 1, 1, 1, 2, 50.622951),
    Sketcher.Constraint("DistanceX", 0, 2, -1, 1, 21.311475),
])
pad6 = body.newObject("PartDesign::Pad", "Pad005")
pad6.Profile = sketch16
pad6.Length = 15

# Sketch on XY plane
sketch17 = body.newObject("Sketcher::SketchObject", "Sketch016")
sketch17.AttachmentSupport = (doc.getObject("XY_Plane"), [""])
sketch17.MapMode = "FlatFace"
sketch17.AttachmentOffset = App.Placement(Vector(0, 0, 5), App.Rotation())
add_polygon(sketch17, [(-21.311475, -61.23), (-21.311475, -76.23), (29.311475, -76.23), (29.311475, -61.23)])  # lines 0-3
sketch17.addConstraint([
    Sketcher.Constraint("Vertical", 0),
    Sketcher.Constraint("Horizontal", 1),
    Sketcher.Constraint("Vertical", 2),
    Sketcher.Constraint("Horizontal", 3),
    Sketcher.Constraint("DistanceY", 0, 2, 0, 1, 15.0),
    Sketcher.Constraint("DistanceY", 0, 2, -1, 1, 76.23),
    Sketcher.Constraint("DistanceX", 1, 1, 1, 2, 50.622951),
    Sketcher.Constraint("DistanceX", 0, 2, -1, 1, 21.311475),
])
pad7 = body.newObject("PartDesign::Pad", "Pad006")
pad7.Profile = sketch17
pad7.Length = 15

# Sketch on XZ plane
sketch18 = body.newObject("Sketcher::SketchObject", "Sketch017")
sketch18.AttachmentSupport = (doc.getObject("XZ_Plane"), [""])
sketch18.MapMode = "FlatFace"
sketch18.AttachmentOffset = App.Placement(Vector(0, 0, 76.23), App.Rotation())
sketch18.addGeometry([
    Part.Circle(Vector(-14, 10, 0), Vector(0, 0, 1), 1),
    Part.Circle(Vector(22, 10, 0), Vector(0, 0, 1), 1),
], False)
sketch18.addConstraint([
    Sketcher.Constraint("Equal", 0, 1),
    Sketcher.Constraint("Horizontal", 0, 3, 1, 3),
    Sketcher.Constraint("Diameter", 0, 2.0),
    Sketcher.Constraint("DistanceX", 0, 3, -1, 1, 14.0),
    Sketcher.Constraint("DistanceY", -1, 1, 0, 3, 10.0),
    Sketcher.Constraint("DistanceX", -1, 1, 1, 3, 22.0),
])
pocket11 = body.newObject("PartDesign::Pocket", "Pocket010")
pocket11.Profile = sketch18
pocket11.Length = 10

# Sketch on XY plane
sketch19 = body.newObject("Sketcher::SketchObject", "Sketch018")
sketch19.AttachmentSupport = (doc.getObject("XY_Plane"), [""])
sketch19.MapMode = "FlatFace"
add_polygon(sketch19, [(24.001475, -71.33), (24.001475, -73.13), (20.001475, -73.13), (20.001475, -71.33)])  # lines 0-3
add_polygon(sketch19, [(-12.001475, -71.33), (-12.001475, -73.13), (-16.001475, -73.13), (-16.001475, -71.33)])  # lines 4-7
sketch19.addConstraint([
    Sketcher.Constraint("Vertical", 0),
    Sketcher.Constraint("Horizontal", 1),
    Sketcher.Constraint("Vertical", 2),
    Sketcher.Constraint("Horizontal", 3),
    Sketcher.Constraint("Vertical", 4),
    Sketcher.Constraint("Horizontal", 5),
    Sketcher.Constraint("Vertical", 6),
    Sketcher.Constraint("Horizontal", 7),
    Sketcher.Constraint("Horizontal", 1, 2, 4, 2),
    Sketcher.Constraint("Horizontal", 3, 2, 6, 2),
    Sketcher.Constraint("Equal", 3, 5),
    Sketcher.Constraint("DistanceX", 1, 2, 1, 1, 4.0),
    Sketcher.Constraint("DistanceY", 0, 2, 0, 1, 1.8),
    Sketcher.Constraint("DistanceY", 0, 2, -1, 1, 73.13),
    Sketcher.Constraint("DistanceX", 4, 2, 1, 2, 32.002951),
    Sketcher.Constraint("DistanceX", -1, 1, 0, 2, 24.001475),
])
pocket12 = body.newObject("PartDesign::Pocket", "Pocket011")
pocket12.Profile = sketch19
pocket12.Length = 10.2
pocket12.Reversed = True

# Sketch on XY plane
sketch20 = body.newObject("Sketcher::SketchObject", "Sketch019")
sketch20.AttachmentSupport = (doc.getObject("XY_Plane"), [""])
sketch20.MapMode = "FlatFace"
sketch20.AttachmentOffset = App.Placement(Vector(0, 0, 20), App.Rotation())
add_polygon(sketch20, [(-6, -48.23), (-6, -61.23), (14, -61.23), (14, -48.23)])  # lines 0-3
sketch20.addConstraint([
    Sketcher.Constraint("Vertical", 0),
    Sketcher.Constraint("Horizontal", 1),
    Sketcher.Constraint("Vertical", 2),
    Sketcher.Constraint("Horizontal", 3),
    Sketcher.Constraint("DistanceX", 1, 1, 1, 2, 20.0),
    Sketcher.Constraint("DistanceY", 0, 2, 0, 1, 13.0),
    Sketcher.Constraint("DistanceX", 0, 2, -1, 1, 6.0),
    Sketcher.Constraint("DistanceY", 0, 2, -1, 1, 61.23),
])
pocket13 = body.newObject("PartDesign::Pocket", "Pocket012")
pocket13.Profile = sketch20
pocket13.Length = 9

doc.recompute()
